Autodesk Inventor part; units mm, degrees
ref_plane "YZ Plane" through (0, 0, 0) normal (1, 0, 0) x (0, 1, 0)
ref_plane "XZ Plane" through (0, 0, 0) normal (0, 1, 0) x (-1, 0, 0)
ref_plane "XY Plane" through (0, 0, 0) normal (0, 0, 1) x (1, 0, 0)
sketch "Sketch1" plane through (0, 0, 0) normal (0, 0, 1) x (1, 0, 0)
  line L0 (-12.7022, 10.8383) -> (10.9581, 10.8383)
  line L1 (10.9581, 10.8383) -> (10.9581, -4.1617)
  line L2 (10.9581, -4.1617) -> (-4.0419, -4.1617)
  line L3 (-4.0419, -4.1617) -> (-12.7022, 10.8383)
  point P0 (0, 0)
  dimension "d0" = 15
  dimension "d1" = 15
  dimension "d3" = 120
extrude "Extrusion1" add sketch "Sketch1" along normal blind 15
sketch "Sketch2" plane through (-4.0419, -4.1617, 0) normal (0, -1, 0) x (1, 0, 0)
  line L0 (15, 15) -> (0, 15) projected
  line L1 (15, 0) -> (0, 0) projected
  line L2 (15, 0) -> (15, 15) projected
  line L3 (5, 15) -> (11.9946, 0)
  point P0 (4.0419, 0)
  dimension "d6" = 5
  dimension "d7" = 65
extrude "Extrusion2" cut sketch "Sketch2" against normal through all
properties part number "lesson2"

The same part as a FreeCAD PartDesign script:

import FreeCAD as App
import Part
import Sketcher
Q = App.Units.Quantity


def add_polygon(sketch, points):
    """Adds a closed chain of lines whose ends are joined by coincident constraints."""
    first, n = sketch.GeometryCount, len(points)
    for a, b in zip(points, points[1:] + points[:1]):
        sketch.addGeometry(Part.LineSegment(App.Vector(*a, 0), App.Vector(*b, 0)), False)
    for i in range(n):
        sketch.addConstraint(Sketcher.Constraint("Coincident", first + i, 2, first + (i + 1) % n, 1))

doc = App.newDocument("Part")
body = doc.addObject("PartDesign::Body", "Body")

sketch1 = body.newObject("Sketcher::SketchObject", "Sketch")
sketch1.AttachmentSupport = (doc.getObject("XY_Plane"), [""])
sketch1.MapMode = "FlatFace"
add_polygon(sketch1, [(11, 11), (-13, 11), (-4, -4), (11, -4)])
sketch1.addConstraint([
    Sketcher.Constraint("Horizontal", 0),
    Sketcher.Constraint("Horizontal", 2),
    Sketcher.Constraint("Vertical", 3),
    Sketcher.Constraint("Equal", 2, 3),
    Sketcher.Constraint("DistanceX", 2, 1, 2, 2, Q("15 mm")),
    Sketcher.Constraint("Angle", 1, Q("-59.9999 deg")),
    Sketcher.Constraint("DistanceX", 1, 2, -1, 1, Q("4.042 mm")),
    Sketcher.Constraint("DistanceY", -1, 1, 0, 2, Q("10.8383 mm")),
])
pad1 = body.newObject("PartDesign::Pad", "Pad")
pad1.Profile = sketch1
pad1.Length = 15

sketch2 = body.newObject("Sketcher::SketchObject", "Sketch001")
sketch2.AttachmentSupport = (doc.getObject("XZ_Plane"), [""])
sketch2.MapMode = "FlatFace"
sketch2.AttachmentOffset = App.Placement(App.Vector(0, 0, 4.1617), App.Rotation())
add_polygon(sketch2, [(11, 0), (11, 15), (1, 15), (8, 0)])
sketch2.addConstraint([
    Sketcher.Constraint("Vertical", 0),
    Sketcher.Constraint("Horizontal", 1),
    Sketcher.Constraint("Horizontal", 3),
    Sketcher.Constraint("PointOnObject", 2, 2, -1),
    Sketcher.Constraint("Angle", 2, Q("-65 deg")),
    Sketcher.Constraint("DistanceX", 1, 2, 1, 1, Q("10 mm")),
    Sketcher.Constraint("DistanceY", 0, 1, 0, 2, Q("15 mm")),
    Sketcher.Constraint("DistanceX", -1, 1, 0, 2, Q("10.958 mm")),
])
pocket1 = body.newObject("PartDesign::Pocket", "Pocket")
pocket1.Profile = sketch2
pocket1.Type = "ThroughAll"

doc.recompute()
